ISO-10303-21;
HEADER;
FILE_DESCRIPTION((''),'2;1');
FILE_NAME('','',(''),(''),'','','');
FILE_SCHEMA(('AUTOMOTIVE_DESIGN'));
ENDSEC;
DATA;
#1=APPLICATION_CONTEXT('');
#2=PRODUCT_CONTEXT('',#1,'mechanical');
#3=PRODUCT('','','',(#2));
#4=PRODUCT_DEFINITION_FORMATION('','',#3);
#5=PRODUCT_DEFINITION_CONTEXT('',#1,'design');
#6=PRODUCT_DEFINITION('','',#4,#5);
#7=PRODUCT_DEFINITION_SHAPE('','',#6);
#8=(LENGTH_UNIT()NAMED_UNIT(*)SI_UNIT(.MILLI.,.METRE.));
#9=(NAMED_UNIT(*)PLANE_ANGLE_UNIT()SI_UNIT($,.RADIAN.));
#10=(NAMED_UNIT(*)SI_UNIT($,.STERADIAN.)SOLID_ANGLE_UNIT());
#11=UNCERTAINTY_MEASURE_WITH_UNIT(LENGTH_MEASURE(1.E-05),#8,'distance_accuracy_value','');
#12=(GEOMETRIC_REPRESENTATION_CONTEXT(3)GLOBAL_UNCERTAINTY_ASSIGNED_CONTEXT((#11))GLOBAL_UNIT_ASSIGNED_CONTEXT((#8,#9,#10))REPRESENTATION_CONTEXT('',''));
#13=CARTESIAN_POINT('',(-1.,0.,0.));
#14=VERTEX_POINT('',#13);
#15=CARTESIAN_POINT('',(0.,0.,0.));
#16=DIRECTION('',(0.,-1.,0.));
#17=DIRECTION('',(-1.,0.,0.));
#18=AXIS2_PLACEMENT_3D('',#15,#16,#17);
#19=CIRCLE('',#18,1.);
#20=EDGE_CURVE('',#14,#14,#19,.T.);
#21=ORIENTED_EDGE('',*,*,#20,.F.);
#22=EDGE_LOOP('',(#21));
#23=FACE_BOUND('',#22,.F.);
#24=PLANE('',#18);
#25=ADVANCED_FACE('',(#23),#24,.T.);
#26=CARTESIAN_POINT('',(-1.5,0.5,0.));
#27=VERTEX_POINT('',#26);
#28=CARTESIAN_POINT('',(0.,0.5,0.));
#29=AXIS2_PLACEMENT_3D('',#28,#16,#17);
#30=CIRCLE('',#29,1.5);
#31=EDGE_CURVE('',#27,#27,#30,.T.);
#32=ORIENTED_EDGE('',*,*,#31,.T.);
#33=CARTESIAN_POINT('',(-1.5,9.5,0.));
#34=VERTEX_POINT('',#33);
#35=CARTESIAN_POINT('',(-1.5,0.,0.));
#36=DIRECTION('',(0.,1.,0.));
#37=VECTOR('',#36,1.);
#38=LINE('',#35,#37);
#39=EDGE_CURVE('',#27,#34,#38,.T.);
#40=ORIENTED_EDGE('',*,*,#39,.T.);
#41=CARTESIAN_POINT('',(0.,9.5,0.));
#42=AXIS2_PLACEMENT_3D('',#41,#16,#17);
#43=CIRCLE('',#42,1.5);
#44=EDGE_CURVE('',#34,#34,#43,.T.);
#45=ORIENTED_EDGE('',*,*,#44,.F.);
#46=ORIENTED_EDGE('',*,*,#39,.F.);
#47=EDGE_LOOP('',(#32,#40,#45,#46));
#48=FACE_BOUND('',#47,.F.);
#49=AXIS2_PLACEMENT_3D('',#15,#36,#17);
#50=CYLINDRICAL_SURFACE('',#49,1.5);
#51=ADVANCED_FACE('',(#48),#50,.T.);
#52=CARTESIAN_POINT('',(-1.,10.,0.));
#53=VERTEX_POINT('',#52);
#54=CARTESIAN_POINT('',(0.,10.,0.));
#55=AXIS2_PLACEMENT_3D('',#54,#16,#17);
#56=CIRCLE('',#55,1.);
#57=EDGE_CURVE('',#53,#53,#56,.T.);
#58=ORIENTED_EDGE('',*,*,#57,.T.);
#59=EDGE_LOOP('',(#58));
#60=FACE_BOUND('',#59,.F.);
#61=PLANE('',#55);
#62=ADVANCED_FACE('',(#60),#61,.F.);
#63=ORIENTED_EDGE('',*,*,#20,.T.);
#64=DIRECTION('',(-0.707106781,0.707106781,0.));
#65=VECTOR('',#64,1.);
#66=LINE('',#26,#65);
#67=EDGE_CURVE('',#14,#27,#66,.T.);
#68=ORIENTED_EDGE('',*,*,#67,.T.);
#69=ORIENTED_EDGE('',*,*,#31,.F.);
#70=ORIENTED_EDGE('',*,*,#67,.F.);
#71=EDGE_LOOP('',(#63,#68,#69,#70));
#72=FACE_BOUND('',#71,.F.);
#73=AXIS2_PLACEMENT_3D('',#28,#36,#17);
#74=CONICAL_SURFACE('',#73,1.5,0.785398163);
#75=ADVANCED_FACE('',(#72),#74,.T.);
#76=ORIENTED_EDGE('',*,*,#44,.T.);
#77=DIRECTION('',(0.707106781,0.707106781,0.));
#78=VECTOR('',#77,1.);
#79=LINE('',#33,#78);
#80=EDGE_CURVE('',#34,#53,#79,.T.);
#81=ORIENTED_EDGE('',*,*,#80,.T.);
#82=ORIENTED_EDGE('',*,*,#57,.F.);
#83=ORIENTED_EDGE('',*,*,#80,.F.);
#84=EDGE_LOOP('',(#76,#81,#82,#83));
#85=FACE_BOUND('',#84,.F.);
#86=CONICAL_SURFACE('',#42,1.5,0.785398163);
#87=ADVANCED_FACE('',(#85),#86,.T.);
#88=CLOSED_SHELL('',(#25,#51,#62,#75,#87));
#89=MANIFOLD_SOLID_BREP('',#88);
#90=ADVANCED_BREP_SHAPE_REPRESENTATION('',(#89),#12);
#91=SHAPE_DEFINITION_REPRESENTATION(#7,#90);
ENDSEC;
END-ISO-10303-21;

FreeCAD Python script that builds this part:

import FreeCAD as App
import Part
import Sketcher


def edges_at(feature, points):
    """Names of the edges that pass closest to the given points."""
    edges = feature.Shape.Edges
    near = lambda p: min(range(len(edges)), key=lambda i: edges[i].distToShape(Part.Vertex(*p))[0])
    return sorted({f"Edge{near(p) + 1}" for p in points})

doc = App.newDocument("Part")
body = doc.addObject("PartDesign::Body", "Body")

# Sketch on XY plane
sketch1 = body.newObject("Sketcher::SketchObject", "Sketch")
sketch1.AttachmentSupport = (doc.getObject("XY_Plane"), [""])
sketch1.MapMode = "FlatFace"
sketch1.addGeometry([
    Part.LineSegment(App.Vector(-1.5, 0, 0), App.Vector(0, 0, 0)),
    Part.LineSegment(App.Vector(0, 0, 0), App.Vector(0, 10, 0)),
    Part.LineSegment(App.Vector(0, 10, 0), App.Vector(-1.5, 10, 0)),
    Part.LineSegment(App.Vector(-1.5, 10, 0), App.Vector(-1.5, 0, 0)),
], False)
sketch1.addConstraint([
    Sketcher.Constraint("Coincident", 0, 2, 1, 1),
    Sketcher.Constraint("Coincident", 1, 2, 2, 1),
    Sketcher.Constraint("Coincident", 2, 2, 3, 1),
    Sketcher.Constraint("Coincident", 3, 2, 0, 1),
    Sketcher.Constraint("Horizontal", 0),
    Sketcher.Constraint("Vertical", 1),
    Sketcher.Constraint("Horizontal", 2),
    Sketcher.Constraint("Vertical", 3),
    Sketcher.Constraint("Coincident", 0, 2, -1, 1),
    Sketcher.Constraint("DistanceY", 1, 1, 1, 2, 10.0),
    Sketcher.Constraint("DistanceX", 0, 1, 0, 2, 1.5),
])
revolution = body.newObject("PartDesign::Revolution", "Revolution")
revolution.Profile = sketch1
revolution.ReferenceAxis = (sketch1, ["V_Axis"])
revolution.Angle = 360
doc.recompute()

chamfer = body.newObject("PartDesign::Chamfer", "Chamfer")
chamfer.Base = (revolution, edges_at(revolution, [(1.5, 10, 0), (1.5, 0, 0)]))
chamfer.Size = 0.5

doc.recompute()
